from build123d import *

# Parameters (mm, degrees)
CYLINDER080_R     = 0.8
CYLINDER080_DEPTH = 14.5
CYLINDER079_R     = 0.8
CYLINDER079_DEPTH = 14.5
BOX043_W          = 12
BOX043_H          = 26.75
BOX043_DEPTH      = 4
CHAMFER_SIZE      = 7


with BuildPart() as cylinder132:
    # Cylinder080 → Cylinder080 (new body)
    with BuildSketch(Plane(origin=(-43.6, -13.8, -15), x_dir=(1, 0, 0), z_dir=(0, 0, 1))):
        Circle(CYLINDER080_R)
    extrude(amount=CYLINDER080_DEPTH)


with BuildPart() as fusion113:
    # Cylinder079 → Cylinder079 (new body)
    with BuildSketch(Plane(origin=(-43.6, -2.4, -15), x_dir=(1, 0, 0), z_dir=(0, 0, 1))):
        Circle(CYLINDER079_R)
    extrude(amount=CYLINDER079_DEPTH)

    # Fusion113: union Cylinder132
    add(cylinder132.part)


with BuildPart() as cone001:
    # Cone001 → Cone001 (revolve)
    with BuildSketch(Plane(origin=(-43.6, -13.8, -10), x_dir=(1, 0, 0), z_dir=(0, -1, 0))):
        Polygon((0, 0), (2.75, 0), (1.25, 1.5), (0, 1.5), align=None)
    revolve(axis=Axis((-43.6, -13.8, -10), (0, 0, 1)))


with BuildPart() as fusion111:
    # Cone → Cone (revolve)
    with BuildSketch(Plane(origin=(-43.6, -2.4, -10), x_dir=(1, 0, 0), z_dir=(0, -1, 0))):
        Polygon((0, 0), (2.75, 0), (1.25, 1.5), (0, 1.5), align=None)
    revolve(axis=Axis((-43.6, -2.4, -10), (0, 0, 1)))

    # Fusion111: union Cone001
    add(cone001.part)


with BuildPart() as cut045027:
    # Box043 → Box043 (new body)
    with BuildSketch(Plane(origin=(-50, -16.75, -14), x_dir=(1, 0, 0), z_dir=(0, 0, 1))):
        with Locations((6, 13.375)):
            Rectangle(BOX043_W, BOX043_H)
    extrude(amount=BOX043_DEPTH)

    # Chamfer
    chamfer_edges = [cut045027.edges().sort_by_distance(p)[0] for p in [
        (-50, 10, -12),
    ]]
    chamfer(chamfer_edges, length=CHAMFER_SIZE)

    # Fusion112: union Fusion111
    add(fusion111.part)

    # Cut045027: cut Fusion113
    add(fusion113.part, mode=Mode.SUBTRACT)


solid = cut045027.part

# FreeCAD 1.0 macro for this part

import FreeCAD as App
import Part
import Sketcher
from FreeCAD import Vector
Q = App.Units.Quantity


def edges_at(feature, points):
    """Names of the edges that pass closest to the given points."""
    edges = feature.Shape.Edges
    near = lambda p: min(range(len(edges)), key=lambda i: edges[i].distToShape(Part.Vertex(*p))[0])
    return sorted({f"Edge{near(p) + 1}" for p in points})


def add_polygon(sketch, points):
    """Adds a closed chain of lines whose ends are joined by coincident constraints."""
    first, n = sketch.GeometryCount, len(points)
    for a, b in zip(points, points[1:] + points[:1]):
        sketch.addGeometry(Part.LineSegment(App.Vector(*a, 0), App.Vector(*b, 0)), False)
    for i in range(n):
        sketch.addConstraint(Sketcher.Constraint("Coincident", first + i, 2, first + (i + 1) % n, 1))

doc = App.newDocument("Part")
body = doc.addObject("PartDesign::Body", "Body")

sketch1 = body.newObject("Sketcher::SketchObject", "Sketch")
sketch1.AttachmentSupport = (doc.getObject("XY_Plane"), [""])
sketch1.MapMode = "FlatFace"
sketch1.AttachmentOffset = App.Placement(Vector(0, 0, -15), App.Rotation())
sketch1.addGeometry(Part.Circle(Vector(-43.6, -13.8, 0), Vector(0, 0, 1), 0.8), False)
sketch1.addConstraint([
    Sketcher.Constraint("Diameter", 0, Q("1.6 mm")),
    Sketcher.Constraint("DistanceX", 0, 3, -1, 1, Q("43.6 mm")),
    Sketcher.Constraint("DistanceY", 0, 3, -1, 1, Q("13.8 mm")),
])
pad1 = body.newObject("PartDesign::Pad", "Pad")
pad1.Profile = sketch1
pad1.Length = 14.5
body2 = doc.addObject("PartDesign::Body", "Body001")
body2.AllowCompound = True

sketch2 = body2.newObject("Sketcher::SketchObject", "Sketch001")
sketch2.AttachmentSupport = (doc.getObject("XY_Plane001"), [""])
sketch2.MapMode = "FlatFace"
sketch2.AttachmentOffset = App.Placement(Vector(0, 0, -15), App.Rotation())
sketch2.addGeometry(Part.Circle(Vector(-43.6, -2.4, 0), Vector(0, 0, 1), 0.8), False)
sketch2.addConstraint([
    Sketcher.Constraint("Diameter", 0, Q("1.6 mm")),
    Sketcher.Constraint("DistanceX", 0, 3, -1, 1, Q("43.6 mm")),
    Sketcher.Constraint("DistanceY", 0, 3, -1, 1, Q("2.4 mm")),
])
pad2 = body2.newObject("PartDesign::Pad", "Pad001")
pad2.Profile = sketch2
pad2.Length = 14.5
doc.recompute()

boolean = body2.newObject("PartDesign::Boolean", "Boolean")
boolean.Type = "Fuse"
boolean.addObjects([body])
body3 = doc.addObject("PartDesign::Body", "Body002")

sketch3 = body3.newObject("Sketcher::SketchObject", "Sketch002")
sketch3.AttachmentSupport = (doc.getObject("XZ_Plane002"), [""])
sketch3.MapMode = "FlatFace"
sketch3.AttachmentOffset = App.Placement(Vector(0, 0, 13.8), App.Rotation())
add_polygon(sketch3, [(-43.6, -10), (-40.9, -10), (-42.4, -8.5), (-43.6, -8.5)])
sketch3.addGeometry(Part.LineSegment(Vector(-43.6, -10, 0), Vector(-43.6, -8.5, 0)), True)
sketch3.addConstraint([
    Sketcher.Constraint("Horizontal", 0),
    Sketcher.Constraint("Horizontal", 2),
    Sketcher.Constraint("Vertical", 3),
    Sketcher.Constraint("Vertical", 4),
    Sketcher.Constraint("Coincident", 4, 1, 3, 2),
    Sketcher.Constraint("Horizontal", 1, 2, 4, 2),
    Sketcher.Constraint("Angle", 1, Q("135 deg")),
    Sketcher.Constraint("DistanceY", 3, 2, 3, 1, Q("1.5 mm")),
    Sketcher.Constraint("DistanceY", 0, 2, -1, 1, Q("10 mm")),
    Sketcher.Constraint("DistanceX", 0, 1, 0, 2, Q("2.75 mm")),
    Sketcher.Constraint("DistanceX", 2, 2, -1, 1, Q("43.6 mm")),
])
revolution = body3.newObject("PartDesign::Revolution", "Revolution")
revolution.Profile = sketch3
revolution.ReferenceAxis = (sketch3, ["Axis0"])
revolution.Angle = 360
body4 = doc.addObject("PartDesign::Body", "Body003")
body4.AllowCompound = True

sketch4 = body4.newObject("Sketcher::SketchObject", "Sketch003")
sketch4.AttachmentSupport = (doc.getObject("XZ_Plane003"), [""])
sketch4.MapMode = "FlatFace"
sketch4.AttachmentOffset = App.Placement(Vector(0, 0, 2.4), App.Rotation())
add_polygon(sketch4, [(-43.6, -10), (-40.9, -10), (-42.4, -8.5), (-43.6, -8.5)])
sketch4.addGeometry(Part.LineSegment(Vector(-43.6, -10, 0), Vector(-43.6, -8.5, 0)), True)
sketch4.addConstraint([
    Sketcher.Constraint("Horizontal", 0),
    Sketcher.Constraint("Horizontal", 2),
    Sketcher.Constraint("Vertical", 3),
    Sketcher.Constraint("Vertical", 4),
    Sketcher.Constraint("Coincident", 4, 1, 3, 2),
    Sketcher.Constraint("Horizontal", 1, 2, 4, 2),
    Sketcher.Constraint("Angle", 1, Q("135 deg")),
    Sketcher.Constraint("DistanceY", 3, 2, 3, 1, Q("1.5 mm")),
    Sketcher.Constraint("DistanceY", 0, 2, -1, 1, Q("10 mm")),
    Sketcher.Constraint("DistanceX", 0, 1, 0, 2, Q("2.75 mm")),
    Sketcher.Constraint("DistanceX", 2, 2, -1, 1, Q("43.6 mm")),
])
revolution2 = body4.newObject("PartDesign::Revolution", "Revolution001")
revolution2.Profile = sketch4
revolution2.ReferenceAxis = (sketch4, ["Axis0"])
revolution2.Angle = 360
doc.recompute()

boolean2 = body4.newObject("PartDesign::Boolean", "Boolean001")
boolean2.Type = "Fuse"
boolean2.addObjects([body3])
body5 = doc.addObject("PartDesign::Body", "Body004")

sketch5 = body5.newObject("Sketcher::SketchObject", "Sketch004")
sketch5.AttachmentSupport = (doc.getObject("XY_Plane004"), [""])
sketch5.MapMode = "FlatFace"
sketch5.AttachmentOffset = App.Placement(Vector(0, 0, -14), App.Rotation())
add_polygon(sketch5, [(-50, 10), (-50, -17), (-38, -17), (-38, 10)])
sketch5.addConstraint([
    Sketcher.Constraint("Vertical", 0),
    Sketcher.Constraint("Horizontal", 1),
    Sketcher.Constraint("Vertical", 2),
    Sketcher.Constraint("Horizontal", 3),
    Sketcher.Constraint("DistanceX", 1, 1, 1, 2, Q("12 mm")),
    Sketcher.Constraint("DistanceX", 0, 2, -1, 1, Q("50 mm")),
    Sketcher.Constraint("DistanceY", -1, 1, 2, 2, Q("10 mm")),
    Sketcher.Constraint("DistanceY", 0, 2, 0, 1, Q("26.75 mm")),
])
pad3 = body5.newObject("PartDesign::Pad", "Pad002")
pad3.Profile = sketch5
pad3.Length = 4
doc.recompute()

chamfer = body5.newObject("PartDesign::Chamfer", "Chamfer")
chamfer.Base = (pad3, edges_at(pad3, [(-50, 10, -12)]))
chamfer.Size = 7
doc.recompute()

boolean3 = body5.newObject("PartDesign::Boolean", "Boolean002")
boolean3.Type = "Fuse"
boolean3.addObjects([body4])
doc.recompute()

boolean4 = body5.newObject("PartDesign::Boolean", "Boolean003")
boolean4.Type = "Cut"
boolean4.addObjects([body2])

doc.recompute()
